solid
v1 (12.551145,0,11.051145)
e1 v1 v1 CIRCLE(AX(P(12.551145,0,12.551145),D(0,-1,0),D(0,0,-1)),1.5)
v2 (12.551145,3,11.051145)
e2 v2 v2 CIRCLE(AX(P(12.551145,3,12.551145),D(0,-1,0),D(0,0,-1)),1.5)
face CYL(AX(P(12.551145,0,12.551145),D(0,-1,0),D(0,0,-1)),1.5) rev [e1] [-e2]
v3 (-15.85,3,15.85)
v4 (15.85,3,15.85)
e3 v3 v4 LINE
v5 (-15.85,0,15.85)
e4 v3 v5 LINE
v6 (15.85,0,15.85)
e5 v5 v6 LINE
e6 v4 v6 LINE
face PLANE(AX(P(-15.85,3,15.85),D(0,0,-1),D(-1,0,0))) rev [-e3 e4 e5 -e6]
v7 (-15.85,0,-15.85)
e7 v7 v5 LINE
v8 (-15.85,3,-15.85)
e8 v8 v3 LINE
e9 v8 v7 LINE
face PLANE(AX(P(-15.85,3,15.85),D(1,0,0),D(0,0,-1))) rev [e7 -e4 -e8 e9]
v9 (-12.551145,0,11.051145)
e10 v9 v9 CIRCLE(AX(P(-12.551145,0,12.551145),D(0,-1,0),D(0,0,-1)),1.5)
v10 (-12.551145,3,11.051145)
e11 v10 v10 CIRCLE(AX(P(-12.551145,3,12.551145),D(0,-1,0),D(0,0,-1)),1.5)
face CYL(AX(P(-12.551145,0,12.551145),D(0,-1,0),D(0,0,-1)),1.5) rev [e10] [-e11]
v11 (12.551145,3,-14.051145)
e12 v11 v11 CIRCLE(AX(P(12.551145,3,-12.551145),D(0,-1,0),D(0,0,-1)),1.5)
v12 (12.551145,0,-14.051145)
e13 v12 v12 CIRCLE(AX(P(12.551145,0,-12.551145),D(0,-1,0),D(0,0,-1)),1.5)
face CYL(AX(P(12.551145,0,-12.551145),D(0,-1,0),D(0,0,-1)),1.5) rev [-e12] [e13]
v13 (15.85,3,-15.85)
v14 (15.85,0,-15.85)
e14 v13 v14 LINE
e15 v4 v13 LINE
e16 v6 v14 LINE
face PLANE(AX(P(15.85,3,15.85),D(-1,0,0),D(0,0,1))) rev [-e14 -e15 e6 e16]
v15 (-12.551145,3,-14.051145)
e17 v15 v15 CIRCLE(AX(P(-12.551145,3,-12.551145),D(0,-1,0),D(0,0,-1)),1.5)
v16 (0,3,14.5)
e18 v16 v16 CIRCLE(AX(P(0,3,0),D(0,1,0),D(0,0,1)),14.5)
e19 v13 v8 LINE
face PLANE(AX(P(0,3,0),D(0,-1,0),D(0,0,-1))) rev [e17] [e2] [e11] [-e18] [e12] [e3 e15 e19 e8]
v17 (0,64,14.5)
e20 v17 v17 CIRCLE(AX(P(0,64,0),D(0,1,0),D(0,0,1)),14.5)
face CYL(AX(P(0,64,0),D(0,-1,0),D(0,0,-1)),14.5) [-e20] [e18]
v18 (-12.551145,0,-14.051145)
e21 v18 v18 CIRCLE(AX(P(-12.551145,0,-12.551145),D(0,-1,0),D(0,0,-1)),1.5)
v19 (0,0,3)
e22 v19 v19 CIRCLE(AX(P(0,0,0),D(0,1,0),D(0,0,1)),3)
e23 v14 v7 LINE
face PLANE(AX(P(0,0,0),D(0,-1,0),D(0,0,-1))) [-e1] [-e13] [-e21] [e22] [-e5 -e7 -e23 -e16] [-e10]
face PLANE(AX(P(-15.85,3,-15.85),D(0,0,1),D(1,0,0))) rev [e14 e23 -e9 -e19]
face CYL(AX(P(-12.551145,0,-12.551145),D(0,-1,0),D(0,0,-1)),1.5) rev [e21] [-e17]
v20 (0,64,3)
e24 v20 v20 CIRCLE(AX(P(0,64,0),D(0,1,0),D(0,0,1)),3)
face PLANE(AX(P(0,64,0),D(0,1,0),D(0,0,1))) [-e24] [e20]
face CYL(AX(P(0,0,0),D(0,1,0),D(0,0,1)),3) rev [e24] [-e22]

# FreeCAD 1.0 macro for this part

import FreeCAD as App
import Part
import Sketcher

V = App.Vector


def add_polygon(sketch, points):
    """Adds a closed chain of lines whose ends are joined by coincident constraints."""
    first, n = sketch.GeometryCount, len(points)
    for a, b in zip(points, points[1:] + points[:1]):
        sketch.addGeometry(Part.LineSegment(App.Vector(*a, 0), App.Vector(*b, 0)), False)
    for i in range(n):
        sketch.addConstraint(Sketcher.Constraint("Coincident", first + i, 2, first + (i + 1) % n, 1))

doc = App.newDocument("Part")
body = doc.addObject("PartDesign::Body", "Body")

sketch1 = body.newObject("Sketcher::SketchObject", "Sketch")
sketch1.AttachmentSupport = (doc.getObject("XZ_Plane"), [""])
sketch1.MapMode = "FlatFace"
add_polygon(sketch1, [(-15.85, -15.85), (-15.85, 15.85), (15.85, 15.85), (15.85, -15.85)])
sketch1.addConstraint([
    Sketcher.Constraint("Vertical", 0),
    Sketcher.Constraint("Horizontal", 1),
    Sketcher.Constraint("Vertical", 2),
    Sketcher.Constraint("Horizontal", 3),
    Sketcher.Constraint("Symmetric", 0, 2, 2, 2, -1, 1),
    Sketcher.Constraint("Equal", 3, 0),
    Sketcher.Constraint("DistanceX", 1, 1, 1, 2, 31.7),
])
pad1 = body.newObject("PartDesign::Pad", "Pad")
pad1.Profile = sketch1
pad1.Length = 3
pad1.Reversed = True

sketch2 = body.newObject("Sketcher::SketchObject", "Sketch001")
sketch2.AttachmentSupport = (doc.getObject("XZ_Plane"), [""])
sketch2.MapMode = "FlatFace"
sketch2.AttachmentOffset = App.Placement(V(0, 0, -3), App.Rotation())
sketch2.addGeometry(Part.Circle(V(0, 0, 0), V(0, 0, 1), 14.5), False)
sketch2.addConstraint([
    Sketcher.Constraint("Coincident", 0, 3, -1, 1),
    Sketcher.Constraint("Diameter", 0, 29.0),
])
pad2 = body.newObject("PartDesign::Pad", "Pad001")
pad2.Profile = sketch2
pad2.Length = 61
pad2.Reversed = True

sketch3 = body.newObject("Sketcher::SketchObject", "Sketch002")
sketch3.AttachmentSupport = (doc.getObject("XZ_Plane"), [""])
sketch3.MapMode = "FlatFace"
sketch3.addGeometry([
    Part.Circle(V(-12.551145, 12.551145, 0), V(0, 0, 1), 1.5),
    Part.Circle(V(12.551145, 12.551145, 0), V(0, 0, 1), 1.5),
    Part.Circle(V(-12.551145, -12.551145, 0), V(0, 0, 1), 1.5),
    Part.Circle(V(12.551145, -12.551145, 0), V(0, 0, 1), 1.5),
], False)
sketch3.addConstraint([
    Sketcher.Constraint("Equal", 0, 1),
    Sketcher.Constraint("Equal", 1, 2),
    Sketcher.Constraint("Equal", 2, 3),
    Sketcher.Constraint("Symmetric", 1, 3, 2, 3, -1, 1),
    Sketcher.Constraint("Symmetric", 0, 3, 3, 3, -1, 1),
    Sketcher.Constraint("Symmetric", 0, 3, 1, 3, -2),
    Sketcher.Constraint("Diameter", 0, 3.0),
    Sketcher.Constraint("DistanceX", 0, 3, 1, 3, 25.102291),
    Sketcher.Constraint("DistanceY", 2, 3, 0, 3, 25.102291),
])
doc.recompute()
hole = body.newObject("PartDesign::Hole", "Hole")
hole.Profile = sketch3
hole.ThreadType = "None"
hole.Diameter = 3
hole.DepthType = "ThroughAll"

sketch4 = body.newObject("Sketcher::SketchObject", "Sketch003")
sketch4.AttachmentSupport = (doc.getObject("XZ_Plane"), [""])
sketch4.MapMode = "FlatFace"
sketch4.AttachmentOffset = App.Placement(V(0, 0, -64), App.Rotation())
sketch4.addGeometry(Part.Circle(V(0, 0, 0), V(0, 0, 1), 3), False)
sketch4.addConstraint([
    Sketcher.Constraint("Coincident", 0, 3, -1, 1),
    Sketcher.Constraint("Diameter", 0, 6.0),
])
pocket1 = body.newObject("PartDesign::Pocket", "Pocket")
pocket1.Profile = sketch4
pocket1.Type = "ThroughAll"
pocket1.Reversed = True

doc.recompute()
